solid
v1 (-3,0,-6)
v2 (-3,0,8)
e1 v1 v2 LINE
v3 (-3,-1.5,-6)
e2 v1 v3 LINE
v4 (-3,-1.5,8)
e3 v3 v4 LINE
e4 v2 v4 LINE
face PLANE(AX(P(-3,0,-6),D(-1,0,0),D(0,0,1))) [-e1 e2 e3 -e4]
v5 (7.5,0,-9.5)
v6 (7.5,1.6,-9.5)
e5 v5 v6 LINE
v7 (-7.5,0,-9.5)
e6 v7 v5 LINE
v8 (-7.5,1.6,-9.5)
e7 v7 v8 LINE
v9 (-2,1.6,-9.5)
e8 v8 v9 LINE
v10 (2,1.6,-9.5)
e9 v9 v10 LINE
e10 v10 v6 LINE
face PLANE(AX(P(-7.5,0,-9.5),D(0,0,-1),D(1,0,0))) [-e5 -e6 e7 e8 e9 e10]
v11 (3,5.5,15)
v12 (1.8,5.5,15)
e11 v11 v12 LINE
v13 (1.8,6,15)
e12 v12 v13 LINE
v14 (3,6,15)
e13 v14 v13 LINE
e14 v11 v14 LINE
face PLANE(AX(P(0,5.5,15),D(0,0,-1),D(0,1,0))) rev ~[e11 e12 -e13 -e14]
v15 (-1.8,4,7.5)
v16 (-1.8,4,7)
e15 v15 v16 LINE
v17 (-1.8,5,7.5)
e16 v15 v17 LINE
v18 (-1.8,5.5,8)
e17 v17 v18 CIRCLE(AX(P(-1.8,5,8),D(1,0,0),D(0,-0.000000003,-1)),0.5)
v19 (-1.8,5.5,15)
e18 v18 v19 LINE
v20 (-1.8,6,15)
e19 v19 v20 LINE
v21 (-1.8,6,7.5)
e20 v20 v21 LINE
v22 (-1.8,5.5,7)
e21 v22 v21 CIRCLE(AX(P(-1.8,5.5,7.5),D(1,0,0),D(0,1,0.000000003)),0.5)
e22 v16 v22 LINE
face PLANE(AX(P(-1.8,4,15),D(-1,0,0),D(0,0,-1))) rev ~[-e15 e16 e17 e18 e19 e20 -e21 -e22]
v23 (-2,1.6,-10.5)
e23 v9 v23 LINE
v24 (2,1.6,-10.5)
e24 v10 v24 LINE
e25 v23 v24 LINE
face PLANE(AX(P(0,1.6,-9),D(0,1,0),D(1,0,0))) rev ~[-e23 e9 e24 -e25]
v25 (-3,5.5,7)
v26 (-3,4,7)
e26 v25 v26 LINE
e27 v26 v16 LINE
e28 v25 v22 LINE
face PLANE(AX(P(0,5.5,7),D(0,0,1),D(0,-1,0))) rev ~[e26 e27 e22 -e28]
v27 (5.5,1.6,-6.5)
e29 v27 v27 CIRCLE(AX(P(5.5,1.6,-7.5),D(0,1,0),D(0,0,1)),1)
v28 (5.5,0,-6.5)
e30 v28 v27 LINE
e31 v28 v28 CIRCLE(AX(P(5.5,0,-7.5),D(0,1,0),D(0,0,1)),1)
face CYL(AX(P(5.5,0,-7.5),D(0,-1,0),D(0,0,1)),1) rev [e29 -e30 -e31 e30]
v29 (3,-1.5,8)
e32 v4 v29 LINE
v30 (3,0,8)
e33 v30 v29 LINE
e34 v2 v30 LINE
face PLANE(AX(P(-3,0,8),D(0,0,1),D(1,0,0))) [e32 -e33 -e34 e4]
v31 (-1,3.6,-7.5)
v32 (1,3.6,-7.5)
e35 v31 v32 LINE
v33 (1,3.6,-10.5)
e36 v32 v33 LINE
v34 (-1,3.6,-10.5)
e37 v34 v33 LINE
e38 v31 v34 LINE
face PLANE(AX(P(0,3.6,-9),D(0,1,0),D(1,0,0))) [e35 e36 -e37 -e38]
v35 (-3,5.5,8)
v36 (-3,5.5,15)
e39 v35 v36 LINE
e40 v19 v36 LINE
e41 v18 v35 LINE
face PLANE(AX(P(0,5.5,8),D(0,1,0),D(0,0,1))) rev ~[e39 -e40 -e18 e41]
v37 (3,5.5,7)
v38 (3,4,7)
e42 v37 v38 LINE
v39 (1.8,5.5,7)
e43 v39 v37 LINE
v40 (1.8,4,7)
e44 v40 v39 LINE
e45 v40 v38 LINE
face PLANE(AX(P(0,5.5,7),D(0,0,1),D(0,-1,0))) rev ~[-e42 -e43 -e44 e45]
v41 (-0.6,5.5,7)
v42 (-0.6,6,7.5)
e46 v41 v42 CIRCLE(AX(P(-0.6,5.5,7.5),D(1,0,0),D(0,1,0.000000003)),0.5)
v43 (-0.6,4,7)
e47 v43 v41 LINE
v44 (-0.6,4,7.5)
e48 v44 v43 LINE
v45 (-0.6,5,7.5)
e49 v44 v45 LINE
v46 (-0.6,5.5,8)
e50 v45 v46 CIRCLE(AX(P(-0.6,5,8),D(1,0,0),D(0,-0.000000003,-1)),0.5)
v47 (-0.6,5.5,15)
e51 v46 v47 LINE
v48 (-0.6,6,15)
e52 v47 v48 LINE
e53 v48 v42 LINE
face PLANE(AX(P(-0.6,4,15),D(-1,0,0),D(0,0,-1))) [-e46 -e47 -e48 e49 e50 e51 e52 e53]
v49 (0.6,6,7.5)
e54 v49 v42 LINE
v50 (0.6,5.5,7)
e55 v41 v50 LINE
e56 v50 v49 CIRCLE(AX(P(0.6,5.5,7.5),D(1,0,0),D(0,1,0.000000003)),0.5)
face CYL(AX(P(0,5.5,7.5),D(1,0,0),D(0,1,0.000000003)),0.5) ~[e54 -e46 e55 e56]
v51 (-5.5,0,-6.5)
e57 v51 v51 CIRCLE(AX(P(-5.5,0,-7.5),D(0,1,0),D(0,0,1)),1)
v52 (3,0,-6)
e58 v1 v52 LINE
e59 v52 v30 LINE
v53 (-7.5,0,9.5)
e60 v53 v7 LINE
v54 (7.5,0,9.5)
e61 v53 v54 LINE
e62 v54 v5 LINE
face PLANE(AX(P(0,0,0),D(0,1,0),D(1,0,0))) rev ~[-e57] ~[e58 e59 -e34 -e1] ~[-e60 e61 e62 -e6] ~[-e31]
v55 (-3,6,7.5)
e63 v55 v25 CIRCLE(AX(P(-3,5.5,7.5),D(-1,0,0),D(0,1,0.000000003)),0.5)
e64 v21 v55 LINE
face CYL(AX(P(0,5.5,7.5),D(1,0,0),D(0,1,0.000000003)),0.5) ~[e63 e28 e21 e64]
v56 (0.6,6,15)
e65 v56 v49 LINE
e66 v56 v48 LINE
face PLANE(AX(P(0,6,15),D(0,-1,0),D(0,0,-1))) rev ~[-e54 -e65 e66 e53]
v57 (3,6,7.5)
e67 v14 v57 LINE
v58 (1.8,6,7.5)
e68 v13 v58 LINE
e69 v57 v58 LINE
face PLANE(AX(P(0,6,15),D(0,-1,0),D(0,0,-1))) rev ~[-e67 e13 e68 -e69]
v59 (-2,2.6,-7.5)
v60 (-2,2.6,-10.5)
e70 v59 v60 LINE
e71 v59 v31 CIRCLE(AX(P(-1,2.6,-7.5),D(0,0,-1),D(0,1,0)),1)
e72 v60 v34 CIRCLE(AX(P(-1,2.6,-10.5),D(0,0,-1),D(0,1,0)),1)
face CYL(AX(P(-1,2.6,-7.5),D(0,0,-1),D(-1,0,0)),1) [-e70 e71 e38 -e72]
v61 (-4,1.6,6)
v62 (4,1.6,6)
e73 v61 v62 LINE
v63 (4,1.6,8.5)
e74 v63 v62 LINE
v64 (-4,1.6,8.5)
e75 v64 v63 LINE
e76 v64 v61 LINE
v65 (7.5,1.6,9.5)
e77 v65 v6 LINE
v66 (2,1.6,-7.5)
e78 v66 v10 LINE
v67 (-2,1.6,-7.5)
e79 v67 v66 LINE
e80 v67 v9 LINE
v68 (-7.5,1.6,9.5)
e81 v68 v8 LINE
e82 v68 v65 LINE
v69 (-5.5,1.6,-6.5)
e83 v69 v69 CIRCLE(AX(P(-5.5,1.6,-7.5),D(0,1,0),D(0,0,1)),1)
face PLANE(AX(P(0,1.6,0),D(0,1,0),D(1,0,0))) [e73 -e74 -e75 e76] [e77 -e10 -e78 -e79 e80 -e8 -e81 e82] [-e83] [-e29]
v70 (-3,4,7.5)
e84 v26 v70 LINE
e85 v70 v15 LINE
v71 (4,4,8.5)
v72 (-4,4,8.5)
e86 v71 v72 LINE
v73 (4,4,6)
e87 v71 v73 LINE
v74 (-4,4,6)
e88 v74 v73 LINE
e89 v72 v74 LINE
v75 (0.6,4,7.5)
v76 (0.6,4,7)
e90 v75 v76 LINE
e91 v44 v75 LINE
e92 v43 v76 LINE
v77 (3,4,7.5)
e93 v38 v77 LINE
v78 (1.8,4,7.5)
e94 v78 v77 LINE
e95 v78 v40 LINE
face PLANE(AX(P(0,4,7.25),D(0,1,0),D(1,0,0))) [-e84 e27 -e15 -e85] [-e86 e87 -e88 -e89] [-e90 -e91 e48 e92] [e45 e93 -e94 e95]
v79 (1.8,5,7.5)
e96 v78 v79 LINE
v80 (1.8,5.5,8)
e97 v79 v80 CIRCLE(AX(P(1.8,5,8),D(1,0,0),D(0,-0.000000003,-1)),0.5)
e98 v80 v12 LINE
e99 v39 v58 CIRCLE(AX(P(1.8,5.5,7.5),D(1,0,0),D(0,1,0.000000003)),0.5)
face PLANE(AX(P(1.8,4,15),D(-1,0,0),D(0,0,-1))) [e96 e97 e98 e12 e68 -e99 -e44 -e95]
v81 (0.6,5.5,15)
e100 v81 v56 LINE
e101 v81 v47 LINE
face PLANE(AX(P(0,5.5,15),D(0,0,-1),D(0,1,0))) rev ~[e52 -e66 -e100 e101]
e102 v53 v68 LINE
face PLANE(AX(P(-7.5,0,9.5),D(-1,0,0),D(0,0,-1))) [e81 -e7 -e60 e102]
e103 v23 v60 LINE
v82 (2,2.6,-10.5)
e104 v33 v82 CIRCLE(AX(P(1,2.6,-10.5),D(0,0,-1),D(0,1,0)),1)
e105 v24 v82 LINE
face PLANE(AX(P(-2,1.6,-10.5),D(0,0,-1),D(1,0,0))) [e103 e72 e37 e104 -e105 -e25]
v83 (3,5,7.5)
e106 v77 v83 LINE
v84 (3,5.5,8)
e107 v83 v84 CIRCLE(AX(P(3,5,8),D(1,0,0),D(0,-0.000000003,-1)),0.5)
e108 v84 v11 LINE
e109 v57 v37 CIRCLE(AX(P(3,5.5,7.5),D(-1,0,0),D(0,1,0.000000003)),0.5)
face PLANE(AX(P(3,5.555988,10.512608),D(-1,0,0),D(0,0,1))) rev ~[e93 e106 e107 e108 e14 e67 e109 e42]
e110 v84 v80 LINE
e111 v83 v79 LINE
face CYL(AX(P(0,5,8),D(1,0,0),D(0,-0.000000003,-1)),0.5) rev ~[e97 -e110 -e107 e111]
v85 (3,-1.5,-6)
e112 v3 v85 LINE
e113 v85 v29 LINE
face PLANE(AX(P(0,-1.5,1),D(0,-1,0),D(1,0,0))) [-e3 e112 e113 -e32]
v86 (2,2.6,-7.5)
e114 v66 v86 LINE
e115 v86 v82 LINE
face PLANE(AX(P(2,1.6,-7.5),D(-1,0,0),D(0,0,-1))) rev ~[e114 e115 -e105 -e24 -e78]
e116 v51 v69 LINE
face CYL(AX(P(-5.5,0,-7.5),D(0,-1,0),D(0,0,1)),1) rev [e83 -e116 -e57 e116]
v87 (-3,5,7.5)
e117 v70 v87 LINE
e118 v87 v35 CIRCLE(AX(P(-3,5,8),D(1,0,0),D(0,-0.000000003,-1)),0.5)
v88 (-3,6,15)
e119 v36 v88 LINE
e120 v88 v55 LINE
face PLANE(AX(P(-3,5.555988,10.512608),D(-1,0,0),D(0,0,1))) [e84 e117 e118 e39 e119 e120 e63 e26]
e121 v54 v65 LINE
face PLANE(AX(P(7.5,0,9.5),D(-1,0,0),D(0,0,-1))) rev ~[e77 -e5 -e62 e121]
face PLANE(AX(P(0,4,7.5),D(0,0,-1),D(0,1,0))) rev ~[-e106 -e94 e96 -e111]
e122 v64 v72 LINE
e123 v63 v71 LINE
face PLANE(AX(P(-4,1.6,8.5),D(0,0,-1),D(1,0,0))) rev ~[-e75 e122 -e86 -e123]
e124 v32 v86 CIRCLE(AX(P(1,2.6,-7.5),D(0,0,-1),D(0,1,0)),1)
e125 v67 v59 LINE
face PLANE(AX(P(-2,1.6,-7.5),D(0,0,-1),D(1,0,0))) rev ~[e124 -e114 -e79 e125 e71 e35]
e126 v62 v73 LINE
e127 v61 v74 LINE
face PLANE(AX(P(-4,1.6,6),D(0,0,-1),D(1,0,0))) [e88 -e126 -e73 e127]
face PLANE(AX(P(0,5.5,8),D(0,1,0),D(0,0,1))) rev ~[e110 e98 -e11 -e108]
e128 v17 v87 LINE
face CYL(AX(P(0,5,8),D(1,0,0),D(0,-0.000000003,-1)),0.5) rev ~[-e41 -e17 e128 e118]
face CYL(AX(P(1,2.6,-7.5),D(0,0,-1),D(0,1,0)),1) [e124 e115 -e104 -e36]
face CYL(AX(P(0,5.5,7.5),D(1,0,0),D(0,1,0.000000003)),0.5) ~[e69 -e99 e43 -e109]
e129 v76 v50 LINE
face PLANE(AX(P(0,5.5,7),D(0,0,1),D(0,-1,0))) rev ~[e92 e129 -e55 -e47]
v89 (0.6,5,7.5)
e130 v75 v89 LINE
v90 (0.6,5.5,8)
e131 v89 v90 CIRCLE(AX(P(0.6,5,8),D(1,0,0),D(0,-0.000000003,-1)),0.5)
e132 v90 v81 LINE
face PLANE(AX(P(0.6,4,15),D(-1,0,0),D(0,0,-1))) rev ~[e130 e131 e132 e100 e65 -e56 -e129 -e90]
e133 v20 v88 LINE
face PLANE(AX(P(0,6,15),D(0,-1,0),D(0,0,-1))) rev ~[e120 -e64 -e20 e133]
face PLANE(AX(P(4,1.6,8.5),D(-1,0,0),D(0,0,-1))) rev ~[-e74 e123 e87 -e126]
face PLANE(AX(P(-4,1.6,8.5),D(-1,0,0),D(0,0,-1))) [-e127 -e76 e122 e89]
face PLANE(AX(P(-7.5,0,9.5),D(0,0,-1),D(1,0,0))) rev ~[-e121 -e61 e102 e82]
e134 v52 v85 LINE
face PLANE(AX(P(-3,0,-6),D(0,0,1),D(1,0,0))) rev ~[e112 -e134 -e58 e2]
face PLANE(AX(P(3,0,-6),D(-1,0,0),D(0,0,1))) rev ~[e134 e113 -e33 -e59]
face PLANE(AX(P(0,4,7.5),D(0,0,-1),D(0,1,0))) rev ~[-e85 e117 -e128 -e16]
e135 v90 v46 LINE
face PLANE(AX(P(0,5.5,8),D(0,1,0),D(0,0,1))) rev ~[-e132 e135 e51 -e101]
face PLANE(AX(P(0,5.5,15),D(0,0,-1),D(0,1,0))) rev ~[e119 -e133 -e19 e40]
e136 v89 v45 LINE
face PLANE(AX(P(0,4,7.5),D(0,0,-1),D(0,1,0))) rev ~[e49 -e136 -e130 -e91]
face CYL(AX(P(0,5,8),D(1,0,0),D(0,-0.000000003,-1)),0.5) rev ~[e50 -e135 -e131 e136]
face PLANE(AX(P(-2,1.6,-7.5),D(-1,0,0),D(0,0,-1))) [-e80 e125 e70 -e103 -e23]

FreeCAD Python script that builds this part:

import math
import FreeCAD as App
import Part
import Sketcher


def edges_at(feature, points):
    """Names of the edges that pass closest to the given points."""
    edges = feature.Shape.Edges
    near = lambda p: min(range(len(edges)), key=lambda i: edges[i].distToShape(Part.Vertex(*p))[0])
    return sorted({f"Edge{near(p) + 1}" for p in points})


def add_polygon(sketch, points):
    """Adds a closed chain of lines whose ends are joined by coincident constraints."""
    first, n = sketch.GeometryCount, len(points)
    for a, b in zip(points, points[1:] + points[:1]):
        sketch.addGeometry(Part.LineSegment(App.Vector(*a, 0), App.Vector(*b, 0)), False)
    for i in range(n):
        sketch.addConstraint(Sketcher.Constraint("Coincident", first + i, 2, first + (i + 1) % n, 1))

doc = App.newDocument("Part")
params = doc.addObject("Spreadsheet::Sheet", "Params")
for row, (alias, value) in enumerate([
    ("sketch1_diameter", "2 mm"),
    ("sketch1_width", "15 mm"),
    ("sketch1_height", "19 mm"),
    ("pad1_length", "1.6 mm"),
    ("sketch2_width", "4 mm"),
    ("sketch2_height", "3 mm"),
    ("pad2_length", "2 mm"),
    ("fillet_radius", "1 mm"),
    ("sketch3_width", "8 mm"),
    ("sketch3_height", "2.5 mm"),
    ("pad3_length", "2.4 mm"),
    ("sketch4_radius", "0.5 mm"),
    ("sketch4_width", "1 mm"),
    ("sketch4_height", "7 mm"),
    ("pad4_length", "6 mm"),
    ("sketch5_height", "8 mm"),
    ("sketch5_width", "1.2 mm"),
    ("pocket1_length", "2 mm"),
    ("sketch6_width", "6 mm"),
    ("sketch6_height", "14 mm"),
    ("pad5_length", "1.5 mm"),
], start=1):
    params.set(f"A{row}", alias)
    params.set(f"B{row}", "=" + value)
    params.setAlias(f"B{row}", alias)

body = doc.addObject("PartDesign::Body", "Body")

# Sketch on XZ plane
sketch1 = body.newObject("Sketcher::SketchObject", "Sketch")
sketch1.AttachmentSupport = (doc.getObject("XZ_Plane"), [""])
sketch1.MapMode = "FlatFace"
add_polygon(sketch1, [(-7.5, -9.5), (-7.5, 9.5), (7.5, 9.5), (7.5, -9.5)])  # lines 0-3
sketch1.addGeometry(Part.Circle(App.Vector(-5.5, -7.5, 0), App.Vector(0, 0, 1), 1), False)  # 4
sketch1.addGeometry(Part.Circle(App.Vector(5.5, -7.5, 0), App.Vector(0, 0, 1), 1), False)  # 5
sketch1.addConstraint(Sketcher.Constraint("Vertical", 0))
sketch1.addConstraint(Sketcher.Constraint("Horizontal", 1))
sketch1.addConstraint(Sketcher.Constraint("Vertical", 2))
sketch1.addConstraint(Sketcher.Constraint("Horizontal", 3))
sketch1.addConstraint(Sketcher.Constraint("Equal", 4, 5))
sketch1.addConstraint(Sketcher.Constraint("Symmetric", 0, 2, 2, 2, -1, 1))
sketch1.addConstraint(Sketcher.Constraint("Symmetric", 4, 3, 5, 3, -2))
sketch1.addConstraint(Sketcher.Constraint("Diameter", 4, 2.0))
sketch1.addConstraint(Sketcher.Constraint("DistanceX", 1, 1, 1, 2, 15.0))
sketch1.addConstraint(Sketcher.Constraint("DistanceY", 0, 1, 0, 2, 19.0))
sketch1.addConstraint(Sketcher.Constraint("DistanceX", 4, 3, 5, 3, 11.0))
sketch1.addConstraint(Sketcher.Constraint("DistanceY", 4, 3, 0, 2, 17.0))
sketch1.setExpression("Constraints[11]", "Params.sketch1_diameter")
sketch1.setExpression("Constraints[12]", "Params.sketch1_width")
sketch1.setExpression("Constraints[13]", "Params.sketch1_height")
pad1 = body.newObject("PartDesign::Pad", "Pad")
pad1.Profile = sketch1
pad1.setExpression("Length", "Params.pad1_length")
pad1.Reversed = True

# Sketch on XZ plane
sketch2 = body.newObject("Sketcher::SketchObject", "Sketch001")
sketch2.AttachmentSupport = (doc.getObject("XZ_Plane"), [""])
sketch2.MapMode = "FlatFace"
sketch2.AttachmentOffset = App.Placement(App.Vector(0, 0, -1.6), App.Rotation())
add_polygon(sketch2, [(-2, -10.5), (-2, -7.5), (2, -7.5), (2, -10.5)])  # lines 0-3
sketch2.addConstraint(Sketcher.Constraint("Vertical", 0))
sketch2.addConstraint(Sketcher.Constraint("Horizontal", 1))
sketch2.addConstraint(Sketcher.Constraint("Vertical", 2))
sketch2.addConstraint(Sketcher.Constraint("Horizontal", 3))
sketch2.addConstraint(Sketcher.Constraint("DistanceX", 1, 1, 1, 2, 4.0))
sketch2.addConstraint(Sketcher.Constraint("DistanceY", 0, 1, 0, 2, 3.0))
sketch2.addConstraint(Sketcher.Constraint("DistanceX", 0, 2, -1, 1, 2.0))
sketch2.addConstraint(Sketcher.Constraint("DistanceY", 0, 2, -1, 1, 7.5))
sketch2.setExpression("Constraints[8]", "Params.sketch2_width")
sketch2.setExpression("Constraints[9]", "Params.sketch2_height")
pad2 = body.newObject("PartDesign::Pad", "Pad001")
pad2.Profile = sketch2
pad2.setExpression("Length", "Params.pad2_length")
pad2.Reversed = True
doc.recompute()

fillet = body.newObject("PartDesign::Fillet", "Fillet")
fillet.Base = (pad2, edges_at(pad2, [(2, 3.6, -9), (-2, 3.6, -9)]))
fillet.setExpression("Radius", "Params.fillet_radius")

# Sketch on XZ plane
sketch3 = body.newObject("Sketcher::SketchObject", "Sketch002")
sketch3.AttachmentSupport = (doc.getObject("XZ_Plane"), [""])
sketch3.MapMode = "FlatFace"
sketch3.AttachmentOffset = App.Placement(App.Vector(0, 0, -1.6), App.Rotation())
add_polygon(sketch3, [(-4, 6), (-4, 8.5), (4, 8.5), (4, 6)])  # lines 0-3
sketch3.addConstraint(Sketcher.Constraint("Vertical", 0))
sketch3.addConstraint(Sketcher.Constraint("Horizontal", 1))
sketch3.addConstraint(Sketcher.Constraint("Vertical", 2))
sketch3.addConstraint(Sketcher.Constraint("Horizontal", 3))
sketch3.addConstraint(Sketcher.Constraint("DistanceX", 1, 1, 1, 2, 8.0))
sketch3.addConstraint(Sketcher.Constraint("DistanceY", 0, 1, 0, 2, 2.5))
sketch3.addConstraint(Sketcher.Constraint("DistanceX", 0, 2, -1, 1, 4.0))
sketch3.addConstraint(Sketcher.Constraint("DistanceY", -1, 1, 2, 2, 6.0))
sketch3.setExpression("Constraints[8]", "Params.sketch3_width")
sketch3.setExpression("Constraints[9]", "Params.sketch3_height")
pad3 = body.newObject("PartDesign::Pad", "Pad002")
pad3.Profile = sketch3
pad3.setExpression("Length", "Params.pad3_length")
pad3.Reversed = True

# Sketch on YZ plane
sketch4 = body.newObject("Sketcher::SketchObject", "Sketch003")
sketch4.AttachmentSupport = (doc.getObject("YZ_Plane"), [""])
sketch4.MapMode = "FlatFace"
sketch4.addGeometry(Part.LineSegment(App.Vector(5, 7.5, 0), App.Vector(4, 7.5, 0)), False)
sketch4.addGeometry(Part.LineSegment(App.Vector(4, 7.5, 0), App.Vector(4, 7, 0)), False)
sketch4.addGeometry(Part.LineSegment(App.Vector(4, 7, 0), App.Vector(5.5, 7, 0)), False)
sketch4.addGeometry(Part.ArcOfCircle(Part.Circle(App.Vector(5.5, 7.5, 0), App.Vector(0, 0, 1), 0.5), math.radians(-90), math.radians(0)), False)
sketch4.addGeometry(Part.LineSegment(App.Vector(6, 7.5, 0), App.Vector(6, 15, 0)), False)
sketch4.addGeometry(Part.LineSegment(App.Vector(6, 15, 0), App.Vector(5.5, 15, 0)), False)
sketch4.addGeometry(Part.LineSegment(App.Vector(5.5, 15, 0), App.Vector(5.5, 8, 0)), False)
sketch4.addGeometry(Part.ArcOfCircle(Part.Circle(App.Vector(5, 8, 0), App.Vector(0, 0, 1), 0.5), math.radians(-90), math.radians(0)), False)
sketch4.addConstraint(Sketcher.Constraint("Coincident", 0, 2, 1, 1))
sketch4.addConstraint(Sketcher.Constraint("Coincident", 1, 2, 2, 1))
sketch4.addConstraint(Sketcher.Constraint("Tangent", 2, 2, 3, 1))
sketch4.addConstraint(Sketcher.Constraint("Tangent", 3, 2, 4, 1))
sketch4.addConstraint(Sketcher.Constraint("Coincident", 4, 2, 5, 1))
sketch4.addConstraint(Sketcher.Constraint("Coincident", 5, 2, 6, 1))
sketch4.addConstraint(Sketcher.Constraint("Tangent", 6, 2, 7, 2))
sketch4.addConstraint(Sketcher.Constraint("Tangent", 7, 1, 0, 1))
sketch4.addConstraint(Sketcher.Constraint("Horizontal", 0))
sketch4.addConstraint(Sketcher.Constraint("Vertical", 1))
sketch4.addConstraint(Sketcher.Constraint("Horizontal", 2))
sketch4.addConstraint(Sketcher.Constraint("Vertical", 4))
sketch4.addConstraint(Sketcher.Constraint("Horizontal", 5))
sketch4.addConstraint(Sketcher.Constraint("Vertical", 6))
sketch4.addConstraint(Sketcher.Constraint("Equal", 3, 7))
sketch4.addConstraint(Sketcher.Constraint("Horizontal", 3, 3, 0, 2))
sketch4.addConstraint(Sketcher.Constraint("Vertical", 2, 2, 5, 2))
sketch4.addConstraint(Sketcher.Constraint("Radius", 3, 0.5))
sketch4.addConstraint(Sketcher.Constraint("DistanceX", 0, 2, 0, 1, 1.0))
sketch4.addConstraint(Sketcher.Constraint("DistanceY", 6, 2, 6, 1, 7.0))
sketch4.addConstraint(Sketcher.Constraint("DistanceX", -1, 1, 7, 3, 5.0))
sketch4.addConstraint(Sketcher.Constraint("DistanceY", -1, 1, 7, 3, 8.0))
sketch4.setExpression("Constraints[17]", "Params.sketch4_radius")
sketch4.setExpression("Constraints[18]", "Params.sketch4_width")
sketch4.setExpression("Constraints[19]", "Params.sketch4_height")
pad4 = body.newObject("PartDesign::Pad", "Pad003")
pad4.Profile = sketch4
pad4.setExpression("Length", "Params.pad4_length")
pad4.Midplane = True

# Sketch on XZ plane
sketch5 = body.newObject("Sketcher::SketchObject", "Sketch004")
sketch5.AttachmentSupport = (doc.getObject("XZ_Plane"), [""])
sketch5.MapMode = "FlatFace"
sketch5.AttachmentOffset = App.Placement(App.Vector(0, 0, -4), App.Rotation())
add_polygon(sketch5, [(-1.8, 7), (-1.8, 15), (-0.6, 15), (-0.6, 7)])  # lines 0-3
add_polygon(sketch5, [(0.6, 7), (0.6, 15), (1.8, 15), (1.8, 7)])  # lines 4-7
sketch5.addConstraint(Sketcher.Constraint("Vertical", 0))
sketch5.addConstraint(Sketcher.Constraint("Horizontal", 1))
sketch5.addConstraint(Sketcher.Constraint("Vertical", 2))
sketch5.addConstraint(Sketcher.Constraint("Horizontal", 3))
sketch5.addConstraint(Sketcher.Constraint("Vertical", 4))
sketch5.addConstraint(Sketcher.Constraint("Horizontal", 5))
sketch5.addConstraint(Sketcher.Constraint("Vertical", 6))
sketch5.addConstraint(Sketcher.Constraint("Horizontal", 7))
sketch5.addConstraint(Sketcher.Constraint("Symmetric", 1, 2, 4, 2, -2))
sketch5.addConstraint(Sketcher.Constraint("Symmetric", 3, 2, 6, 2, -2))
sketch5.addConstraint(Sketcher.Constraint("DistanceY", 0, 1, 0, 2, 8.0))
sketch5.addConstraint(Sketcher.Constraint("DistanceX", 1, 1, 1, 2, 1.2))
sketch5.addConstraint(Sketcher.Constraint("DistanceY", -1, 1, 0, 2, 15.0))
sketch5.addConstraint(Sketcher.Constraint("DistanceX", 0, 2, -1, 1, 1.8))
sketch5.setExpression("Constraints[18]", "Params.sketch5_height")
sketch5.setExpression("Constraints[19]", "Params.sketch5_width")
pocket1 = body.newObject("PartDesign::Pocket", "Pocket")
pocket1.Profile = sketch5
pocket1.setExpression("Length", "Params.pocket1_length")

# Sketch on XZ plane
sketch6 = body.newObject("Sketcher::SketchObject", "Sketch005")
sketch6.AttachmentSupport = (doc.getObject("XZ_Plane"), [""])
sketch6.MapMode = "FlatFace"
add_polygon(sketch6, [(-3, 8), (-3, -6), (3, -6), (3, 8)])  # lines 0-3
sketch6.addConstraint(Sketcher.Constraint("Vertical", 0))
sketch6.addConstraint(Sketcher.Constraint("Horizontal", 1))
sketch6.addConstraint(Sketcher.Constraint("Vertical", 2))
sketch6.addConstraint(Sketcher.Constraint("Horizontal", 3))
sketch6.addConstraint(Sketcher.Constraint("DistanceX", 1, 1, 1, 2, 6.0))
sketch6.addConstraint(Sketcher.Constraint("DistanceY", 0, 2, 0, 1, 14.0))
sketch6.addConstraint(Sketcher.Constraint("DistanceX", 0, 2, -1, 1, 3.0))
sketch6.addConstraint(Sketcher.Constraint("DistanceY", 0, 2, -1, 1, 6.0))
sketch6.setExpression("Constraints[8]", "Params.sketch6_width")
sketch6.setExpression("Constraints[9]", "Params.sketch6_height")
pad5 = body.newObject("PartDesign::Pad", "Pad004")
pad5.Profile = sketch6
pad5.setExpression("Length", "Params.pad5_length")

doc.recompute()
